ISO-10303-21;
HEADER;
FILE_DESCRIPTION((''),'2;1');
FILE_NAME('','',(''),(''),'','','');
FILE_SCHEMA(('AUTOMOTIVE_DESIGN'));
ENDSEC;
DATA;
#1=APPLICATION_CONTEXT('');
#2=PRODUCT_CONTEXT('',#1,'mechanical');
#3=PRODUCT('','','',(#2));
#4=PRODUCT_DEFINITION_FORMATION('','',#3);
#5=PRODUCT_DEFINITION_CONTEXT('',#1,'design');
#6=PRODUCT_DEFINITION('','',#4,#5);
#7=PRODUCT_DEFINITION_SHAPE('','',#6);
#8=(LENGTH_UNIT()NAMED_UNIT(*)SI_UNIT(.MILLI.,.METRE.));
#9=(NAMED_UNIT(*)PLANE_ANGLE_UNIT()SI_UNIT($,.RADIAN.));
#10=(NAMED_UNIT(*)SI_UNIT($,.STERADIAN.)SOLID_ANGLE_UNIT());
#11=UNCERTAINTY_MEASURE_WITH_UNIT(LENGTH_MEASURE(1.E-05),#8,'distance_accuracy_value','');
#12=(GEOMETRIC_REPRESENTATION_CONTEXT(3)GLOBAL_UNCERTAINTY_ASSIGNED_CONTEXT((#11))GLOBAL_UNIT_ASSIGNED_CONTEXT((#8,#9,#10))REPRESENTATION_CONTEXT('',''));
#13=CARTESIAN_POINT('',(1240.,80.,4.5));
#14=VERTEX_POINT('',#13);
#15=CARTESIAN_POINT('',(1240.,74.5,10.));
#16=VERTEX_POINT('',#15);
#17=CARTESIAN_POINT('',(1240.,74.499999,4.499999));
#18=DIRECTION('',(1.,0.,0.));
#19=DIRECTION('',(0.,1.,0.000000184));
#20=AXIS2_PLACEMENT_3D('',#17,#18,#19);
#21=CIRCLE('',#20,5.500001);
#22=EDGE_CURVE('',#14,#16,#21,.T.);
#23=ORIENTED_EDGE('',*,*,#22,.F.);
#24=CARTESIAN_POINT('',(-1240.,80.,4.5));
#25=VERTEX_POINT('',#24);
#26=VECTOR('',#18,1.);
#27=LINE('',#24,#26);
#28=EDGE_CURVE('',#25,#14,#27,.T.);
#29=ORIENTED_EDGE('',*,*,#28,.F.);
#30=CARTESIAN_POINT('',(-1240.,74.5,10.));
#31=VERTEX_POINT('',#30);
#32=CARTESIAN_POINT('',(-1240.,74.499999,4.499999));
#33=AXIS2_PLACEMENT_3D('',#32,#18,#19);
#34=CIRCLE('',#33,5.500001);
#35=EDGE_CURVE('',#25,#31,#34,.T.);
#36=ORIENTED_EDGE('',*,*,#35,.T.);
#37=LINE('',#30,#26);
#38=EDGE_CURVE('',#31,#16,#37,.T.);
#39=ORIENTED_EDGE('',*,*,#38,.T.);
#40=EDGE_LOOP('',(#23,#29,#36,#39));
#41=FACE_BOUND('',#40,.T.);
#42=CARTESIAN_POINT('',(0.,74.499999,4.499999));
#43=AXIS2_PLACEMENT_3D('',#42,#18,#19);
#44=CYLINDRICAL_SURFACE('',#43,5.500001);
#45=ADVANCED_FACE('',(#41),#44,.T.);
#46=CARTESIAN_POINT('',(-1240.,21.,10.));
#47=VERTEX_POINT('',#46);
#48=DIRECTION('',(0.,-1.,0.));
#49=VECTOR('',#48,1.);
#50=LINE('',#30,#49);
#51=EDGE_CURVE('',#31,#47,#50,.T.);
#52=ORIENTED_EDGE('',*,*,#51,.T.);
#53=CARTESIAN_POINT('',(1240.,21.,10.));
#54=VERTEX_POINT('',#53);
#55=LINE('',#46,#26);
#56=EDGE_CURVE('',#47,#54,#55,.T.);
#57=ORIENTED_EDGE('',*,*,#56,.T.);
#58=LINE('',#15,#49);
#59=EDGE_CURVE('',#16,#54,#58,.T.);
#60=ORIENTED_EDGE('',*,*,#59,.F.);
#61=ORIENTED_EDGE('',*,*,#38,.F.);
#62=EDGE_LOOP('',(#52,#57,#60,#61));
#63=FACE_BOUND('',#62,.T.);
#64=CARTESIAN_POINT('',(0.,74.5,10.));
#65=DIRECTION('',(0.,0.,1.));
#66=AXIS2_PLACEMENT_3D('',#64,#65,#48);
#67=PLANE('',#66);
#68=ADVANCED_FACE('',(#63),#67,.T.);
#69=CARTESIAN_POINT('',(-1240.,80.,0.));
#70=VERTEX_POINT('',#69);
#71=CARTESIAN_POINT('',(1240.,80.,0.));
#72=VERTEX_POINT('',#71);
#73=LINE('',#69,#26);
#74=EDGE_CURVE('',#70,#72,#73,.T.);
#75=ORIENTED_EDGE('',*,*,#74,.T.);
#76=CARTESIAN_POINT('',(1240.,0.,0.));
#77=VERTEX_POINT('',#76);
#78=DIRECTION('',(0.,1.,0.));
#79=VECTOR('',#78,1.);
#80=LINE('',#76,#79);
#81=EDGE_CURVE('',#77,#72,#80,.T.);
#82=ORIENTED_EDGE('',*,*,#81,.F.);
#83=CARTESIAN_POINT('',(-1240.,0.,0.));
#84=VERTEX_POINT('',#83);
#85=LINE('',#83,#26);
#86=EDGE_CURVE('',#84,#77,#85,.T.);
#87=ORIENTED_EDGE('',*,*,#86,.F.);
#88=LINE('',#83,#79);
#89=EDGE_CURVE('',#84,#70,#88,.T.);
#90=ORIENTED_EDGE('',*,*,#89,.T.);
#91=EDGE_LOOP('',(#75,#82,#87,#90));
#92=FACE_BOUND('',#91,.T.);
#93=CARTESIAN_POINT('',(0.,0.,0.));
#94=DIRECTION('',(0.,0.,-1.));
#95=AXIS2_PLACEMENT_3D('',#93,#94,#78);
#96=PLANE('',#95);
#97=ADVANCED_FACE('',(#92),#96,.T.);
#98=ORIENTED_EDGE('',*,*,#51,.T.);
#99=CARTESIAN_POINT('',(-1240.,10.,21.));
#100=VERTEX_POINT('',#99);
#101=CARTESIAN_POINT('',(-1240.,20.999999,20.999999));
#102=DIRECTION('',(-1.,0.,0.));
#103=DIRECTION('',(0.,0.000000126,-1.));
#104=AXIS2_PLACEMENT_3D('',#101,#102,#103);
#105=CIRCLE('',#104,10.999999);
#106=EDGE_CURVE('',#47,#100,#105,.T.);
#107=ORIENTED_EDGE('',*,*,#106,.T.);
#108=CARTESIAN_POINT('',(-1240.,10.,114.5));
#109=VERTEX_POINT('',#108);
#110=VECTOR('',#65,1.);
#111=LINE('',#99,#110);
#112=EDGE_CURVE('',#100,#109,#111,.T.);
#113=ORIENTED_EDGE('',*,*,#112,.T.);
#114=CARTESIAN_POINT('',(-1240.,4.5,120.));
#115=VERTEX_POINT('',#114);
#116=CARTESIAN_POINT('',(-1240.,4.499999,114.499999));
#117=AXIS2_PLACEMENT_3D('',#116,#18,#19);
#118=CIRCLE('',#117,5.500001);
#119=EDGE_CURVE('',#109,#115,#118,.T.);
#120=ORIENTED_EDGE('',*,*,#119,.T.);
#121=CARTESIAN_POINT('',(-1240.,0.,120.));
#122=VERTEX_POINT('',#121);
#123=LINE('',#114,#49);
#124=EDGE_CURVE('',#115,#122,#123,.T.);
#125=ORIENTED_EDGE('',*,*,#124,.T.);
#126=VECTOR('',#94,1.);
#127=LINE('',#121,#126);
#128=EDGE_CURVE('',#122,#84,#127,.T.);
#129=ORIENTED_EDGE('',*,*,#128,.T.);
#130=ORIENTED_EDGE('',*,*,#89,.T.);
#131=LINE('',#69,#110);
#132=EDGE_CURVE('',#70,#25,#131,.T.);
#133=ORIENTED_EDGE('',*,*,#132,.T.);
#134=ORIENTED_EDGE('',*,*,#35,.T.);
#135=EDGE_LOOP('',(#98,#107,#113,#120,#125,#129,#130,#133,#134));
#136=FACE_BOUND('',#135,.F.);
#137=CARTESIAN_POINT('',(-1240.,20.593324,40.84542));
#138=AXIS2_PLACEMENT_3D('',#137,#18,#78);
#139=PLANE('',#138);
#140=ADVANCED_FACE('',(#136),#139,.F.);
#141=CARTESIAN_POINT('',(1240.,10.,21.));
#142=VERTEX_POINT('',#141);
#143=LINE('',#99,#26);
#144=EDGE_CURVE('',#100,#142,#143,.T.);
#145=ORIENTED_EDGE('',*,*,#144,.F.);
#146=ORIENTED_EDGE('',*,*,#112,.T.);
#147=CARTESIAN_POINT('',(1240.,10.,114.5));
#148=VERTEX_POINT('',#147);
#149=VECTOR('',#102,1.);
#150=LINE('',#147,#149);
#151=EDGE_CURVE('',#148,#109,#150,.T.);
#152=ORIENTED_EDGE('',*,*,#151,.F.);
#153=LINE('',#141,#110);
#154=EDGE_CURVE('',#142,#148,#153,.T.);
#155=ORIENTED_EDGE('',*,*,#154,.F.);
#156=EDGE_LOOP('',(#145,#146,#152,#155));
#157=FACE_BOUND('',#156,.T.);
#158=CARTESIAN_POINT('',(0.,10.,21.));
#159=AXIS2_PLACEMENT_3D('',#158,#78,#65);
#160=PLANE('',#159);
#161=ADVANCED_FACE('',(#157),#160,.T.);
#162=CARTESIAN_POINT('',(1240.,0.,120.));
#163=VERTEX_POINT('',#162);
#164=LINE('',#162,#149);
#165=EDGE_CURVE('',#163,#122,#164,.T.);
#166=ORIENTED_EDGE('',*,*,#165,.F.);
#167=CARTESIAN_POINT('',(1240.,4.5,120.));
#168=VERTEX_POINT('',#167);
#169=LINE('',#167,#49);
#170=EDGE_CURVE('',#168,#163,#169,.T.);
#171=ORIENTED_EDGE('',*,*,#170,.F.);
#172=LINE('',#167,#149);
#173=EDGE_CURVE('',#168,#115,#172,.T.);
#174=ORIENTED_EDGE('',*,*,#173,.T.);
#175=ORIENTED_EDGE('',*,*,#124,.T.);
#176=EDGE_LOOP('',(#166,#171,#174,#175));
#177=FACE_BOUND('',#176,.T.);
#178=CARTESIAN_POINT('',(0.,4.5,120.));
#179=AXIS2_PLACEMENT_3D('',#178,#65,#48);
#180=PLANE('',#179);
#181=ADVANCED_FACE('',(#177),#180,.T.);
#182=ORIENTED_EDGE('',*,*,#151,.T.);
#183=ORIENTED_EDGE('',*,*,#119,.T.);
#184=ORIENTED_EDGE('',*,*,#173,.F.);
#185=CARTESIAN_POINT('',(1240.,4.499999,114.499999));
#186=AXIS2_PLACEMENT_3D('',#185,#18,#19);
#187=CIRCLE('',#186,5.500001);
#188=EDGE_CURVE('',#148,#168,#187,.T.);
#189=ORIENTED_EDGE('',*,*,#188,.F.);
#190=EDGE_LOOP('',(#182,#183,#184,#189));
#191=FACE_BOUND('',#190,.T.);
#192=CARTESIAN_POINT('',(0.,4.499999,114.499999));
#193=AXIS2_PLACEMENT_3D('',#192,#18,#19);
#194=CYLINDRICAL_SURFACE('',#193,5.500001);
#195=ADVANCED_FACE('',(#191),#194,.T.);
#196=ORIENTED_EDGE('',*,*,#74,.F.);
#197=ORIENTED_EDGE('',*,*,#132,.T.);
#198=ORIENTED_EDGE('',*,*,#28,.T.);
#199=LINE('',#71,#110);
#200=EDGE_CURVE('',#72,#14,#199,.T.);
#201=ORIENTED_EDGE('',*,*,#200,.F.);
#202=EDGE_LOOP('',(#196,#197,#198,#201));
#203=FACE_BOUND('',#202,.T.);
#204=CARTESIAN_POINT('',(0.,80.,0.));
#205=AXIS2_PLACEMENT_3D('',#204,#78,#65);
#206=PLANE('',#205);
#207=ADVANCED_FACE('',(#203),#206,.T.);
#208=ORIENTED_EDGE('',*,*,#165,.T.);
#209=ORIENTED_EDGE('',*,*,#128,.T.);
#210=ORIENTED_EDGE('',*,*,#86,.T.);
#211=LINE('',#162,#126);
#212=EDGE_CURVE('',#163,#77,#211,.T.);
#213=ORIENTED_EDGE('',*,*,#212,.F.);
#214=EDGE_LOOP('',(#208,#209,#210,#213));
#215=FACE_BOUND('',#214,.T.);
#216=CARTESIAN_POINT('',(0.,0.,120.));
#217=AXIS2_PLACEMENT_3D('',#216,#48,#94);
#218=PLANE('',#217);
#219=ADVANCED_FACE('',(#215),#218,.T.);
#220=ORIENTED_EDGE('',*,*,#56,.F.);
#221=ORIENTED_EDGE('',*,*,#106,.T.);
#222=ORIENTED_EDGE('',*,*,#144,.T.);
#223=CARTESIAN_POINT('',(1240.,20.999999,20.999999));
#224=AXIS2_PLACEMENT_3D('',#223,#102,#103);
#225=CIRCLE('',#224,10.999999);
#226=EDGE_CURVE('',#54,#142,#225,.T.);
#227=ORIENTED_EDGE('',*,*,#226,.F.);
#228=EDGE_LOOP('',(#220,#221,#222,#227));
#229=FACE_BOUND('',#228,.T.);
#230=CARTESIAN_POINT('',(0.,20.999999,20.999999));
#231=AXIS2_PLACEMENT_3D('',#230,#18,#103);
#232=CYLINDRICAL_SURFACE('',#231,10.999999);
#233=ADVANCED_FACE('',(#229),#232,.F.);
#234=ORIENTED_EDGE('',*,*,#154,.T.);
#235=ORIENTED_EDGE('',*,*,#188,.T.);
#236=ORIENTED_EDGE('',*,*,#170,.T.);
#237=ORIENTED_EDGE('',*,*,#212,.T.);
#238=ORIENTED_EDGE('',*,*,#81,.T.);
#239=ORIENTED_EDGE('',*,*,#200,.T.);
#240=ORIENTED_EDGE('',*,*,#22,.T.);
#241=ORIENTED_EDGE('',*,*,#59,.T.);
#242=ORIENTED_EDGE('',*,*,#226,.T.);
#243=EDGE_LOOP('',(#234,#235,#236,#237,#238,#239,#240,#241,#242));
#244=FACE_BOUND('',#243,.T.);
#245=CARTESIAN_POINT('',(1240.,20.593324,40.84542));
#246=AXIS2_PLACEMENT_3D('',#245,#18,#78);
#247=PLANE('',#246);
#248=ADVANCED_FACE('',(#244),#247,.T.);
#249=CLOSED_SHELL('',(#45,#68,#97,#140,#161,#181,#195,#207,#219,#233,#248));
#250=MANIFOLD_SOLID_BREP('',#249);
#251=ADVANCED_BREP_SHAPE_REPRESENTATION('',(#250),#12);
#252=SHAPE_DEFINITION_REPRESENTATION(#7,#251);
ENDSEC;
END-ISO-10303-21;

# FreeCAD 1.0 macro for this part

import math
import FreeCAD as App
import Part
import Sketcher

V = App.Vector
Q = App.Units.Quantity

doc = App.newDocument("Part")
body = doc.addObject("PartDesign::Body", "Body")

sketch1 = body.newObject("Sketcher::SketchObject", "Sketch")
sketch1.AttachmentSupport = (doc.getObject("YZ_Plane"), [""])
sketch1.MapMode = "FlatFace"
sketch1.addGeometry(Part.LineSegment(V(0, 120, 0), V(0, 0, 0)), False)
sketch1.addGeometry(Part.LineSegment(V(0, 0, 0), V(80, 0, 0)), False)
sketch1.addGeometry(Part.LineSegment(V(80, 0, 0), V(80, 4.5, 0)), False)
sketch1.addGeometry(Part.ArcOfCircle(Part.Circle(V(74.5, 4.5, 0), V(0, 0, 1), 5.5), math.radians(0), math.radians(90)), False)
sketch1.addGeometry(Part.LineSegment(V(74.5, 10, 0), V(21, 10, 0)), False)
sketch1.addGeometry(Part.ArcOfCircle(Part.Circle(V(21, 21, 0), V(0, 0, 1), 11), math.radians(180), math.radians(270)), False)
sketch1.addGeometry(Part.LineSegment(V(10, 21, 0), V(10, 114.5, 0)), False)
sketch1.addGeometry(Part.ArcOfCircle(Part.Circle(V(4.5, 114.5, 0), V(0, 0, 1), 5.5), math.radians(0), math.radians(90)), False)
sketch1.addGeometry(Part.LineSegment(V(4.5, 120, 0), V(0, 120, 0)), False)
sketch1.addConstraint(Sketcher.Constraint("Coincident", 0, 2, 1, 1))
sketch1.addConstraint(Sketcher.Constraint("Coincident", 1, 2, 2, 1))
sketch1.addConstraint(Sketcher.Constraint("Tangent", 2, 2, 3, 1))
sketch1.addConstraint(Sketcher.Constraint("Tangent", 3, 2, 4, 1))
sketch1.addConstraint(Sketcher.Constraint("Tangent", 4, 2, 5, 2))
sketch1.addConstraint(Sketcher.Constraint("Tangent", 5, 1, 6, 1))
sketch1.addConstraint(Sketcher.Constraint("Tangent", 6, 2, 7, 1))
sketch1.addConstraint(Sketcher.Constraint("Tangent", 7, 2, 8, 1))
sketch1.addConstraint(Sketcher.Constraint("Coincident", 8, 2, 0, 1))
sketch1.addConstraint(Sketcher.Constraint("Vertical", 0))
sketch1.addConstraint(Sketcher.Constraint("Horizontal", 1))
sketch1.addConstraint(Sketcher.Constraint("Vertical", 2))
sketch1.addConstraint(Sketcher.Constraint("Horizontal", 4))
sketch1.addConstraint(Sketcher.Constraint("Vertical", 6))
sketch1.addConstraint(Sketcher.Constraint("Horizontal", 8))
sketch1.addConstraint(Sketcher.Constraint("Coincident", 0, 2, -1, 1))
sketch1.addConstraint(Sketcher.Constraint("Equal", 3, 7))
sketch1.addConstraint(Sketcher.Constraint("Equal", 8, 2))
sketch1.addConstraint(Sketcher.Constraint("Radius", 5, Q("10.999999 mm")))
sketch1.addConstraint(Sketcher.Constraint("Radius", 3, Q("5.500001 mm")))
sketch1.addConstraint(Sketcher.Constraint("DistanceX", 1, 1, 1, 2, Q("80 mm")))
sketch1.addConstraint(Sketcher.Constraint("DistanceY", 0, 2, 0, 1, Q("120 mm")))
sketch1.addConstraint(Sketcher.Constraint("DistanceX", 4, 2, 4, 1, Q("53.5 mm")))
pad1 = body.newObject("PartDesign::Pad", "Pad")
pad1.Profile = sketch1
pad1.Length = 2480
pad1.Midplane = True

doc.recompute()
